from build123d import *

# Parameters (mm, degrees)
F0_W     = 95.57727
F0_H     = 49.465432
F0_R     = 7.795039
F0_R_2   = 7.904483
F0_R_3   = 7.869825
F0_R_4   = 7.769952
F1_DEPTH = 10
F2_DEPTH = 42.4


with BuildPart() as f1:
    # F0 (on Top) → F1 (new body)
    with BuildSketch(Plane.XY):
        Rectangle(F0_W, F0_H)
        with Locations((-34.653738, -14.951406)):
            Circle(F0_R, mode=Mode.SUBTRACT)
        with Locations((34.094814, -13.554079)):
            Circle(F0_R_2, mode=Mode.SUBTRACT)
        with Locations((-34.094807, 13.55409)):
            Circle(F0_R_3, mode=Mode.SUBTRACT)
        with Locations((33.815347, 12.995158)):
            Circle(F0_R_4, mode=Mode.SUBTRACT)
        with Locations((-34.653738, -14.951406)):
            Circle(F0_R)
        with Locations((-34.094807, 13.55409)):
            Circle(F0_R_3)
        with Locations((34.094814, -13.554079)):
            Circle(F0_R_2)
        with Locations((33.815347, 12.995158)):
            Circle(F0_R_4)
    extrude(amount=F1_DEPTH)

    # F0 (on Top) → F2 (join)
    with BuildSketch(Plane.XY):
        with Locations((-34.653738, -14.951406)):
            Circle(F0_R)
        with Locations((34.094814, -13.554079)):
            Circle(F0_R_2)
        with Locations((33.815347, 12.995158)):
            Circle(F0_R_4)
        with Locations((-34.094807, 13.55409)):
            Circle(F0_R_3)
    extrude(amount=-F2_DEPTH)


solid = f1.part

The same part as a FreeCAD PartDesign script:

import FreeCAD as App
import Part
import Sketcher
from FreeCAD import Vector
Q = App.Units.Quantity


def add_polygon(sketch, points):
    """Adds a closed chain of lines whose ends are joined by coincident constraints."""
    first, n = sketch.GeometryCount, len(points)
    for a, b in zip(points, points[1:] + points[:1]):
        sketch.addGeometry(Part.LineSegment(App.Vector(*a, 0), App.Vector(*b, 0)), False)
    for i in range(n):
        sketch.addConstraint(Sketcher.Constraint("Coincident", first + i, 2, first + (i + 1) % n, 1))

doc = App.newDocument("Part")
params = doc.addObject("Spreadsheet::Sheet", "Params")
for row, (alias, value) in enumerate([
    ("pad1_length", "10 mm"),
    ("pad2_length", "42.4 mm"),
], start=1):
    params.set(f"A{row}", alias)
    params.set(f"B{row}", "=" + value)
    params.setAlias(f"B{row}", alias)

body = doc.addObject("PartDesign::Body", "Body")

# Sketch on XY plane
sketch1 = doc.addObject("Sketcher::SketchObject", "Sketch")
body.addObject(sketch1)
sketch1.AttachmentSupport = (doc.XY_Plane, [""])
sketch1.MapMode = "FlatFace"
add_polygon(sketch1, [(-47.788635, 24.732716), (-47.788635, -24.732716), (47.788635, -24.732716), (47.788635, 24.732716)])  # lines 0-3
sketch1.addConstraint([
    Sketcher.Constraint("Vertical", 0),
    Sketcher.Constraint("Horizontal", 1),
    Sketcher.Constraint("Vertical", 2),
    Sketcher.Constraint("Horizontal", 3),
    Sketcher.Constraint("Symmetric", 0, 2, 2, 2, -1, 1),
    Sketcher.Constraint("DistanceX", 1, 1, 1, 2, Q("95.57727 mm")),
    Sketcher.Constraint("DistanceY", 0, 2, 0, 1, Q("49.465432 mm")),
])
pad1 = doc.addObject("PartDesign::Pad", "Pad")
body.addObject(pad1)
pad1.Profile = sketch1
pad1.setExpression("Length", "Params.pad1_length")

# Sketch on XY plane
sketch2 = doc.addObject("Sketcher::SketchObject", "Sketch001")
body.addObject(sketch2)
sketch2.AttachmentSupport = (doc.XY_Plane, [""])
sketch2.MapMode = "FlatFace"
sketch2.addGeometry([
    Part.Circle(Vector(-34.653738, -14.951406, 0), Vector(0, 0, 1), 7.795039),
    Part.Circle(Vector(34.094814, -13.554079, 0), Vector(0, 0, 1), 7.904483),
    Part.Circle(Vector(33.815347, 12.995158, 0), Vector(0, 0, 1), 7.769952),
    Part.Circle(Vector(-34.094807, 13.55409, 0), Vector(0, 0, 1), 7.869825),
], False)
sketch2.addConstraint([
    Sketcher.Constraint("Diameter", 3, Q("15.73965 mm")),
    Sketcher.Constraint("Diameter", 0, Q("15.590078 mm")),
    Sketcher.Constraint("Diameter", 1, Q("15.808966 mm")),
    Sketcher.Constraint("Diameter", 2, Q("15.539904 mm")),
    Sketcher.Constraint("DistanceY", 1, 3, -1, 1, Q("13.554079 mm")),
    Sketcher.Constraint("DistanceY", -1, 1, 3, 3, Q("13.55409 mm")),
    Sketcher.Constraint("DistanceX", 0, 3, 1, 3, Q("68.748552 mm")),
    Sketcher.Constraint("DistanceX", 0, 3, 3, 3, Q("0.558931 mm")),
    Sketcher.Constraint("DistanceX", 0, 3, -1, 1, Q("34.653738 mm")),
    Sketcher.Constraint("DistanceY", 0, 3, -1, 1, Q("14.951406 mm")),
    Sketcher.Constraint("DistanceX", -1, 1, 2, 3, Q("33.815347 mm")),
    Sketcher.Constraint("DistanceY", -1, 1, 2, 3, Q("12.995158 mm")),
])
pad2 = doc.addObject("PartDesign::Pad", "Pad001")
body.addObject(pad2)
pad2.Profile = sketch2
pad2.setExpression("Length", "Params.pad2_length")
pad2.Reversed = True

doc.recompute()
